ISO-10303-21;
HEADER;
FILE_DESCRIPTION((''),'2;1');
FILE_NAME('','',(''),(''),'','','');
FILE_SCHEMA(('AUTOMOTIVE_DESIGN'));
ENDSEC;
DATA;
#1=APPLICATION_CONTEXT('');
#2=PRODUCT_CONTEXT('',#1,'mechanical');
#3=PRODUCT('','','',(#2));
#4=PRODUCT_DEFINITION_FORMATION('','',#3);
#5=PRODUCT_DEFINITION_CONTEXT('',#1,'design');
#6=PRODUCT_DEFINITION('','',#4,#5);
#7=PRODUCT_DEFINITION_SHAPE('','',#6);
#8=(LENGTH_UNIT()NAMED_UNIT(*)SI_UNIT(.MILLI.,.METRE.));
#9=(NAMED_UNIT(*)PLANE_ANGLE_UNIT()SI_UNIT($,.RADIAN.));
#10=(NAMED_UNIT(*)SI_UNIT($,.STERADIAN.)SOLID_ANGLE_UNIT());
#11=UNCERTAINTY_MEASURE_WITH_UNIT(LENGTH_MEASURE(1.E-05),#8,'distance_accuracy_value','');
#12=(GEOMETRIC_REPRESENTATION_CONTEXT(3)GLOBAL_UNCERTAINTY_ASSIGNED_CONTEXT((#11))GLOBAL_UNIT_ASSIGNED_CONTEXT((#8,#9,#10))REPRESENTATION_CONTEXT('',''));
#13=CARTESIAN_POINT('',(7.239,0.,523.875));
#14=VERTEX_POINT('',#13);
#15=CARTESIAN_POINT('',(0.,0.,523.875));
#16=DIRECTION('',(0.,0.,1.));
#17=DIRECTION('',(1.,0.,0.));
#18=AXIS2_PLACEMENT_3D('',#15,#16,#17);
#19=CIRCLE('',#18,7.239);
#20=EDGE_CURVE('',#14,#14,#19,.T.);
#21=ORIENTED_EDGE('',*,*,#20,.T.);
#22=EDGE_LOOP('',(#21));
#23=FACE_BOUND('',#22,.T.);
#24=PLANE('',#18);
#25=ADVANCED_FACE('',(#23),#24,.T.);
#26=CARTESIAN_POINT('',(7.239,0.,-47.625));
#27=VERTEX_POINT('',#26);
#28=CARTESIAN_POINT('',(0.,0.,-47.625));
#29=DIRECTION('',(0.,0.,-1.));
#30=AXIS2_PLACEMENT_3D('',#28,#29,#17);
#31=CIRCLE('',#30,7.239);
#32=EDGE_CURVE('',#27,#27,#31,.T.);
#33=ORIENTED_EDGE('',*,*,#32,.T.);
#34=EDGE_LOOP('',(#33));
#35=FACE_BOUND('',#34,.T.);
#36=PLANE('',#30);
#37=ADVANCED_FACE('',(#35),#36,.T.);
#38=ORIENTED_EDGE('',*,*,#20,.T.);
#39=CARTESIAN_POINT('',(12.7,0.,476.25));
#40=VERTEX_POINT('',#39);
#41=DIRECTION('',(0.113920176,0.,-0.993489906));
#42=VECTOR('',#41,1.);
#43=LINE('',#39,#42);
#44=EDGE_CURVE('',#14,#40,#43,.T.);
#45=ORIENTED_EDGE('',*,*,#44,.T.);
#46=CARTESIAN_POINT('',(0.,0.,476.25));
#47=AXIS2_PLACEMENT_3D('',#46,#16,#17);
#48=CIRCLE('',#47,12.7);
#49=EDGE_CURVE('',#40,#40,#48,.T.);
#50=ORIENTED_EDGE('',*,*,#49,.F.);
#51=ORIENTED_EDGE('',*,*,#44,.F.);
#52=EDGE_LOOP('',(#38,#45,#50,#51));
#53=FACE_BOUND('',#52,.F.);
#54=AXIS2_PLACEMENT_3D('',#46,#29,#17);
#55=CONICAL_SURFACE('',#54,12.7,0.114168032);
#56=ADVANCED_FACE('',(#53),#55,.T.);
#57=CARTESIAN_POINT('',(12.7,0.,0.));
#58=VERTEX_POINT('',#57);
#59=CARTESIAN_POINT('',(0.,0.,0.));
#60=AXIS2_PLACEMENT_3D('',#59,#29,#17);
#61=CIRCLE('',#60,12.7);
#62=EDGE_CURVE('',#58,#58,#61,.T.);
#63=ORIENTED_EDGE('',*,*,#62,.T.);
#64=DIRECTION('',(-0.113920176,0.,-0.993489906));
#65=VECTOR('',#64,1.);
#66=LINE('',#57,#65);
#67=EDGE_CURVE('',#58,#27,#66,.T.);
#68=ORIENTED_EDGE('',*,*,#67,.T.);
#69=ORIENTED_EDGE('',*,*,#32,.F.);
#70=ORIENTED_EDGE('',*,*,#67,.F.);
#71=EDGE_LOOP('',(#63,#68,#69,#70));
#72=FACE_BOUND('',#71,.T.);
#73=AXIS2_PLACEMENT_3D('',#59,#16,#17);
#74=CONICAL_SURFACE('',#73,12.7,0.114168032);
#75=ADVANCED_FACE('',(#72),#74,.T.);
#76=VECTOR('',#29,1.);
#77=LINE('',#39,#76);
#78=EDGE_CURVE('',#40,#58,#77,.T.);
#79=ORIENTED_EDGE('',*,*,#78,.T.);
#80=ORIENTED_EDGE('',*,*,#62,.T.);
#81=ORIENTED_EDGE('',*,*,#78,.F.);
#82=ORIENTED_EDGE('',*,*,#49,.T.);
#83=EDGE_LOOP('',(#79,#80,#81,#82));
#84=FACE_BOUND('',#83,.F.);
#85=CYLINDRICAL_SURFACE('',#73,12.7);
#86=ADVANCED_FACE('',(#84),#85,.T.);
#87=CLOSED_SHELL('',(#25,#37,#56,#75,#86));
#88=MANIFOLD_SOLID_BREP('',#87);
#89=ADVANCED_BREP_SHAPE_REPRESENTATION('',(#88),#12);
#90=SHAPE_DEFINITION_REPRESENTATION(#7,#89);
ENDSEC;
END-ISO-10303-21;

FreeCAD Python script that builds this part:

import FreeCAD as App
import Part
import Sketcher
from FreeCAD import Vector
Q = App.Units.Quantity


def edges_at(feature, points):
    """Names of the edges that pass closest to the given points."""
    edges = feature.Shape.Edges
    near = lambda p: min(range(len(edges)), key=lambda i: edges[i].distToShape(Part.Vertex(*p))[0])
    return sorted({f"Edge{near(p) + 1}" for p in points})

doc = App.newDocument("Part")
body = doc.addObject("PartDesign::Body", "Body")

sketch1 = doc.addObject("Sketcher::SketchObject", "Sketch")
body.addObject(sketch1)
sketch1.AttachmentSupport = (doc.XY_Plane, [""])
sketch1.MapMode = "FlatFace"
sketch1.addGeometry(Part.Circle(Vector(0, 0, 0), Vector(0, 0, 1), 12.7), False)
sketch1.addConstraint(Sketcher.Constraint("Coincident", 0, 3, -1, 1))
sketch1.addConstraint(Sketcher.Constraint("Diameter", 0, Q("1 in")))
pad1 = doc.addObject("PartDesign::Pad", "Pad")
body.addObject(pad1)
pad1.Profile = sketch1
pad1.Length = Q("18.75 in")

sketch2 = doc.addObject("Sketcher::SketchObject", "Sketch001")
body.addObject(sketch2)
sketch2.AttachmentSupport = (doc.XY_Plane, [""])
sketch2.MapMode = "FlatFace"
sketch2.AttachmentOffset = App.Placement(Vector(0, 0, 18.75 * 25.4), App.Rotation())
sketch2.addGeometry(Part.Circle(Vector(0, 0, 0), Vector(0, 0, 1), 12.7), False)
sketch2.addConstraint(Sketcher.Constraint("Coincident", 0, 3, -1, 1))
sketch2.addConstraint(Sketcher.Constraint("Diameter", 0, Q("1 in")))
pad2 = doc.addObject("PartDesign::Pad", "Pad001")
body.addObject(pad2)
pad2.Profile = sketch2
pad2.Length = Q("1.875 in")
doc.recompute()

chamfer = doc.addObject("PartDesign::Chamfer", "Chamfer")
body.addObject(chamfer)
chamfer.Base = (pad2, edges_at(pad2, [(-12.7, 0, 523.875)]))
chamfer.ChamferType = "Two distances"
chamfer.Size = Q("0.215 in")
chamfer.Size2 = Q("1.875 in")

sketch3 = doc.addObject("Sketcher::SketchObject", "Sketch002")
body.addObject(sketch3)
sketch3.AttachmentSupport = (doc.XY_Plane, [""])
sketch3.MapMode = "FlatFace"
sketch3.addGeometry(Part.Circle(Vector(0, 0, 0), Vector(0, 0, 1), 12.7), False)
sketch3.addConstraint(Sketcher.Constraint("Coincident", 0, 3, -1, 1))
sketch3.addConstraint(Sketcher.Constraint("Diameter", 0, Q("1 in")))
pad3 = doc.addObject("PartDesign::Pad", "Pad002")
body.addObject(pad3)
pad3.Profile = sketch3
pad3.Length = Q("1.875 in")
pad3.Reversed = True
doc.recompute()

chamfer2 = doc.addObject("PartDesign::Chamfer", "Chamfer001")
body.addObject(chamfer2)
chamfer2.Base = (pad3, edges_at(pad3, [(-12.7, 0, -47.625)]))
chamfer2.ChamferType = "Two distances"
chamfer2.Size = Q("1.875 in")
chamfer2.Size2 = Q("0.215 in")
chamfer2.FlipDirection = True

doc.recompute()
